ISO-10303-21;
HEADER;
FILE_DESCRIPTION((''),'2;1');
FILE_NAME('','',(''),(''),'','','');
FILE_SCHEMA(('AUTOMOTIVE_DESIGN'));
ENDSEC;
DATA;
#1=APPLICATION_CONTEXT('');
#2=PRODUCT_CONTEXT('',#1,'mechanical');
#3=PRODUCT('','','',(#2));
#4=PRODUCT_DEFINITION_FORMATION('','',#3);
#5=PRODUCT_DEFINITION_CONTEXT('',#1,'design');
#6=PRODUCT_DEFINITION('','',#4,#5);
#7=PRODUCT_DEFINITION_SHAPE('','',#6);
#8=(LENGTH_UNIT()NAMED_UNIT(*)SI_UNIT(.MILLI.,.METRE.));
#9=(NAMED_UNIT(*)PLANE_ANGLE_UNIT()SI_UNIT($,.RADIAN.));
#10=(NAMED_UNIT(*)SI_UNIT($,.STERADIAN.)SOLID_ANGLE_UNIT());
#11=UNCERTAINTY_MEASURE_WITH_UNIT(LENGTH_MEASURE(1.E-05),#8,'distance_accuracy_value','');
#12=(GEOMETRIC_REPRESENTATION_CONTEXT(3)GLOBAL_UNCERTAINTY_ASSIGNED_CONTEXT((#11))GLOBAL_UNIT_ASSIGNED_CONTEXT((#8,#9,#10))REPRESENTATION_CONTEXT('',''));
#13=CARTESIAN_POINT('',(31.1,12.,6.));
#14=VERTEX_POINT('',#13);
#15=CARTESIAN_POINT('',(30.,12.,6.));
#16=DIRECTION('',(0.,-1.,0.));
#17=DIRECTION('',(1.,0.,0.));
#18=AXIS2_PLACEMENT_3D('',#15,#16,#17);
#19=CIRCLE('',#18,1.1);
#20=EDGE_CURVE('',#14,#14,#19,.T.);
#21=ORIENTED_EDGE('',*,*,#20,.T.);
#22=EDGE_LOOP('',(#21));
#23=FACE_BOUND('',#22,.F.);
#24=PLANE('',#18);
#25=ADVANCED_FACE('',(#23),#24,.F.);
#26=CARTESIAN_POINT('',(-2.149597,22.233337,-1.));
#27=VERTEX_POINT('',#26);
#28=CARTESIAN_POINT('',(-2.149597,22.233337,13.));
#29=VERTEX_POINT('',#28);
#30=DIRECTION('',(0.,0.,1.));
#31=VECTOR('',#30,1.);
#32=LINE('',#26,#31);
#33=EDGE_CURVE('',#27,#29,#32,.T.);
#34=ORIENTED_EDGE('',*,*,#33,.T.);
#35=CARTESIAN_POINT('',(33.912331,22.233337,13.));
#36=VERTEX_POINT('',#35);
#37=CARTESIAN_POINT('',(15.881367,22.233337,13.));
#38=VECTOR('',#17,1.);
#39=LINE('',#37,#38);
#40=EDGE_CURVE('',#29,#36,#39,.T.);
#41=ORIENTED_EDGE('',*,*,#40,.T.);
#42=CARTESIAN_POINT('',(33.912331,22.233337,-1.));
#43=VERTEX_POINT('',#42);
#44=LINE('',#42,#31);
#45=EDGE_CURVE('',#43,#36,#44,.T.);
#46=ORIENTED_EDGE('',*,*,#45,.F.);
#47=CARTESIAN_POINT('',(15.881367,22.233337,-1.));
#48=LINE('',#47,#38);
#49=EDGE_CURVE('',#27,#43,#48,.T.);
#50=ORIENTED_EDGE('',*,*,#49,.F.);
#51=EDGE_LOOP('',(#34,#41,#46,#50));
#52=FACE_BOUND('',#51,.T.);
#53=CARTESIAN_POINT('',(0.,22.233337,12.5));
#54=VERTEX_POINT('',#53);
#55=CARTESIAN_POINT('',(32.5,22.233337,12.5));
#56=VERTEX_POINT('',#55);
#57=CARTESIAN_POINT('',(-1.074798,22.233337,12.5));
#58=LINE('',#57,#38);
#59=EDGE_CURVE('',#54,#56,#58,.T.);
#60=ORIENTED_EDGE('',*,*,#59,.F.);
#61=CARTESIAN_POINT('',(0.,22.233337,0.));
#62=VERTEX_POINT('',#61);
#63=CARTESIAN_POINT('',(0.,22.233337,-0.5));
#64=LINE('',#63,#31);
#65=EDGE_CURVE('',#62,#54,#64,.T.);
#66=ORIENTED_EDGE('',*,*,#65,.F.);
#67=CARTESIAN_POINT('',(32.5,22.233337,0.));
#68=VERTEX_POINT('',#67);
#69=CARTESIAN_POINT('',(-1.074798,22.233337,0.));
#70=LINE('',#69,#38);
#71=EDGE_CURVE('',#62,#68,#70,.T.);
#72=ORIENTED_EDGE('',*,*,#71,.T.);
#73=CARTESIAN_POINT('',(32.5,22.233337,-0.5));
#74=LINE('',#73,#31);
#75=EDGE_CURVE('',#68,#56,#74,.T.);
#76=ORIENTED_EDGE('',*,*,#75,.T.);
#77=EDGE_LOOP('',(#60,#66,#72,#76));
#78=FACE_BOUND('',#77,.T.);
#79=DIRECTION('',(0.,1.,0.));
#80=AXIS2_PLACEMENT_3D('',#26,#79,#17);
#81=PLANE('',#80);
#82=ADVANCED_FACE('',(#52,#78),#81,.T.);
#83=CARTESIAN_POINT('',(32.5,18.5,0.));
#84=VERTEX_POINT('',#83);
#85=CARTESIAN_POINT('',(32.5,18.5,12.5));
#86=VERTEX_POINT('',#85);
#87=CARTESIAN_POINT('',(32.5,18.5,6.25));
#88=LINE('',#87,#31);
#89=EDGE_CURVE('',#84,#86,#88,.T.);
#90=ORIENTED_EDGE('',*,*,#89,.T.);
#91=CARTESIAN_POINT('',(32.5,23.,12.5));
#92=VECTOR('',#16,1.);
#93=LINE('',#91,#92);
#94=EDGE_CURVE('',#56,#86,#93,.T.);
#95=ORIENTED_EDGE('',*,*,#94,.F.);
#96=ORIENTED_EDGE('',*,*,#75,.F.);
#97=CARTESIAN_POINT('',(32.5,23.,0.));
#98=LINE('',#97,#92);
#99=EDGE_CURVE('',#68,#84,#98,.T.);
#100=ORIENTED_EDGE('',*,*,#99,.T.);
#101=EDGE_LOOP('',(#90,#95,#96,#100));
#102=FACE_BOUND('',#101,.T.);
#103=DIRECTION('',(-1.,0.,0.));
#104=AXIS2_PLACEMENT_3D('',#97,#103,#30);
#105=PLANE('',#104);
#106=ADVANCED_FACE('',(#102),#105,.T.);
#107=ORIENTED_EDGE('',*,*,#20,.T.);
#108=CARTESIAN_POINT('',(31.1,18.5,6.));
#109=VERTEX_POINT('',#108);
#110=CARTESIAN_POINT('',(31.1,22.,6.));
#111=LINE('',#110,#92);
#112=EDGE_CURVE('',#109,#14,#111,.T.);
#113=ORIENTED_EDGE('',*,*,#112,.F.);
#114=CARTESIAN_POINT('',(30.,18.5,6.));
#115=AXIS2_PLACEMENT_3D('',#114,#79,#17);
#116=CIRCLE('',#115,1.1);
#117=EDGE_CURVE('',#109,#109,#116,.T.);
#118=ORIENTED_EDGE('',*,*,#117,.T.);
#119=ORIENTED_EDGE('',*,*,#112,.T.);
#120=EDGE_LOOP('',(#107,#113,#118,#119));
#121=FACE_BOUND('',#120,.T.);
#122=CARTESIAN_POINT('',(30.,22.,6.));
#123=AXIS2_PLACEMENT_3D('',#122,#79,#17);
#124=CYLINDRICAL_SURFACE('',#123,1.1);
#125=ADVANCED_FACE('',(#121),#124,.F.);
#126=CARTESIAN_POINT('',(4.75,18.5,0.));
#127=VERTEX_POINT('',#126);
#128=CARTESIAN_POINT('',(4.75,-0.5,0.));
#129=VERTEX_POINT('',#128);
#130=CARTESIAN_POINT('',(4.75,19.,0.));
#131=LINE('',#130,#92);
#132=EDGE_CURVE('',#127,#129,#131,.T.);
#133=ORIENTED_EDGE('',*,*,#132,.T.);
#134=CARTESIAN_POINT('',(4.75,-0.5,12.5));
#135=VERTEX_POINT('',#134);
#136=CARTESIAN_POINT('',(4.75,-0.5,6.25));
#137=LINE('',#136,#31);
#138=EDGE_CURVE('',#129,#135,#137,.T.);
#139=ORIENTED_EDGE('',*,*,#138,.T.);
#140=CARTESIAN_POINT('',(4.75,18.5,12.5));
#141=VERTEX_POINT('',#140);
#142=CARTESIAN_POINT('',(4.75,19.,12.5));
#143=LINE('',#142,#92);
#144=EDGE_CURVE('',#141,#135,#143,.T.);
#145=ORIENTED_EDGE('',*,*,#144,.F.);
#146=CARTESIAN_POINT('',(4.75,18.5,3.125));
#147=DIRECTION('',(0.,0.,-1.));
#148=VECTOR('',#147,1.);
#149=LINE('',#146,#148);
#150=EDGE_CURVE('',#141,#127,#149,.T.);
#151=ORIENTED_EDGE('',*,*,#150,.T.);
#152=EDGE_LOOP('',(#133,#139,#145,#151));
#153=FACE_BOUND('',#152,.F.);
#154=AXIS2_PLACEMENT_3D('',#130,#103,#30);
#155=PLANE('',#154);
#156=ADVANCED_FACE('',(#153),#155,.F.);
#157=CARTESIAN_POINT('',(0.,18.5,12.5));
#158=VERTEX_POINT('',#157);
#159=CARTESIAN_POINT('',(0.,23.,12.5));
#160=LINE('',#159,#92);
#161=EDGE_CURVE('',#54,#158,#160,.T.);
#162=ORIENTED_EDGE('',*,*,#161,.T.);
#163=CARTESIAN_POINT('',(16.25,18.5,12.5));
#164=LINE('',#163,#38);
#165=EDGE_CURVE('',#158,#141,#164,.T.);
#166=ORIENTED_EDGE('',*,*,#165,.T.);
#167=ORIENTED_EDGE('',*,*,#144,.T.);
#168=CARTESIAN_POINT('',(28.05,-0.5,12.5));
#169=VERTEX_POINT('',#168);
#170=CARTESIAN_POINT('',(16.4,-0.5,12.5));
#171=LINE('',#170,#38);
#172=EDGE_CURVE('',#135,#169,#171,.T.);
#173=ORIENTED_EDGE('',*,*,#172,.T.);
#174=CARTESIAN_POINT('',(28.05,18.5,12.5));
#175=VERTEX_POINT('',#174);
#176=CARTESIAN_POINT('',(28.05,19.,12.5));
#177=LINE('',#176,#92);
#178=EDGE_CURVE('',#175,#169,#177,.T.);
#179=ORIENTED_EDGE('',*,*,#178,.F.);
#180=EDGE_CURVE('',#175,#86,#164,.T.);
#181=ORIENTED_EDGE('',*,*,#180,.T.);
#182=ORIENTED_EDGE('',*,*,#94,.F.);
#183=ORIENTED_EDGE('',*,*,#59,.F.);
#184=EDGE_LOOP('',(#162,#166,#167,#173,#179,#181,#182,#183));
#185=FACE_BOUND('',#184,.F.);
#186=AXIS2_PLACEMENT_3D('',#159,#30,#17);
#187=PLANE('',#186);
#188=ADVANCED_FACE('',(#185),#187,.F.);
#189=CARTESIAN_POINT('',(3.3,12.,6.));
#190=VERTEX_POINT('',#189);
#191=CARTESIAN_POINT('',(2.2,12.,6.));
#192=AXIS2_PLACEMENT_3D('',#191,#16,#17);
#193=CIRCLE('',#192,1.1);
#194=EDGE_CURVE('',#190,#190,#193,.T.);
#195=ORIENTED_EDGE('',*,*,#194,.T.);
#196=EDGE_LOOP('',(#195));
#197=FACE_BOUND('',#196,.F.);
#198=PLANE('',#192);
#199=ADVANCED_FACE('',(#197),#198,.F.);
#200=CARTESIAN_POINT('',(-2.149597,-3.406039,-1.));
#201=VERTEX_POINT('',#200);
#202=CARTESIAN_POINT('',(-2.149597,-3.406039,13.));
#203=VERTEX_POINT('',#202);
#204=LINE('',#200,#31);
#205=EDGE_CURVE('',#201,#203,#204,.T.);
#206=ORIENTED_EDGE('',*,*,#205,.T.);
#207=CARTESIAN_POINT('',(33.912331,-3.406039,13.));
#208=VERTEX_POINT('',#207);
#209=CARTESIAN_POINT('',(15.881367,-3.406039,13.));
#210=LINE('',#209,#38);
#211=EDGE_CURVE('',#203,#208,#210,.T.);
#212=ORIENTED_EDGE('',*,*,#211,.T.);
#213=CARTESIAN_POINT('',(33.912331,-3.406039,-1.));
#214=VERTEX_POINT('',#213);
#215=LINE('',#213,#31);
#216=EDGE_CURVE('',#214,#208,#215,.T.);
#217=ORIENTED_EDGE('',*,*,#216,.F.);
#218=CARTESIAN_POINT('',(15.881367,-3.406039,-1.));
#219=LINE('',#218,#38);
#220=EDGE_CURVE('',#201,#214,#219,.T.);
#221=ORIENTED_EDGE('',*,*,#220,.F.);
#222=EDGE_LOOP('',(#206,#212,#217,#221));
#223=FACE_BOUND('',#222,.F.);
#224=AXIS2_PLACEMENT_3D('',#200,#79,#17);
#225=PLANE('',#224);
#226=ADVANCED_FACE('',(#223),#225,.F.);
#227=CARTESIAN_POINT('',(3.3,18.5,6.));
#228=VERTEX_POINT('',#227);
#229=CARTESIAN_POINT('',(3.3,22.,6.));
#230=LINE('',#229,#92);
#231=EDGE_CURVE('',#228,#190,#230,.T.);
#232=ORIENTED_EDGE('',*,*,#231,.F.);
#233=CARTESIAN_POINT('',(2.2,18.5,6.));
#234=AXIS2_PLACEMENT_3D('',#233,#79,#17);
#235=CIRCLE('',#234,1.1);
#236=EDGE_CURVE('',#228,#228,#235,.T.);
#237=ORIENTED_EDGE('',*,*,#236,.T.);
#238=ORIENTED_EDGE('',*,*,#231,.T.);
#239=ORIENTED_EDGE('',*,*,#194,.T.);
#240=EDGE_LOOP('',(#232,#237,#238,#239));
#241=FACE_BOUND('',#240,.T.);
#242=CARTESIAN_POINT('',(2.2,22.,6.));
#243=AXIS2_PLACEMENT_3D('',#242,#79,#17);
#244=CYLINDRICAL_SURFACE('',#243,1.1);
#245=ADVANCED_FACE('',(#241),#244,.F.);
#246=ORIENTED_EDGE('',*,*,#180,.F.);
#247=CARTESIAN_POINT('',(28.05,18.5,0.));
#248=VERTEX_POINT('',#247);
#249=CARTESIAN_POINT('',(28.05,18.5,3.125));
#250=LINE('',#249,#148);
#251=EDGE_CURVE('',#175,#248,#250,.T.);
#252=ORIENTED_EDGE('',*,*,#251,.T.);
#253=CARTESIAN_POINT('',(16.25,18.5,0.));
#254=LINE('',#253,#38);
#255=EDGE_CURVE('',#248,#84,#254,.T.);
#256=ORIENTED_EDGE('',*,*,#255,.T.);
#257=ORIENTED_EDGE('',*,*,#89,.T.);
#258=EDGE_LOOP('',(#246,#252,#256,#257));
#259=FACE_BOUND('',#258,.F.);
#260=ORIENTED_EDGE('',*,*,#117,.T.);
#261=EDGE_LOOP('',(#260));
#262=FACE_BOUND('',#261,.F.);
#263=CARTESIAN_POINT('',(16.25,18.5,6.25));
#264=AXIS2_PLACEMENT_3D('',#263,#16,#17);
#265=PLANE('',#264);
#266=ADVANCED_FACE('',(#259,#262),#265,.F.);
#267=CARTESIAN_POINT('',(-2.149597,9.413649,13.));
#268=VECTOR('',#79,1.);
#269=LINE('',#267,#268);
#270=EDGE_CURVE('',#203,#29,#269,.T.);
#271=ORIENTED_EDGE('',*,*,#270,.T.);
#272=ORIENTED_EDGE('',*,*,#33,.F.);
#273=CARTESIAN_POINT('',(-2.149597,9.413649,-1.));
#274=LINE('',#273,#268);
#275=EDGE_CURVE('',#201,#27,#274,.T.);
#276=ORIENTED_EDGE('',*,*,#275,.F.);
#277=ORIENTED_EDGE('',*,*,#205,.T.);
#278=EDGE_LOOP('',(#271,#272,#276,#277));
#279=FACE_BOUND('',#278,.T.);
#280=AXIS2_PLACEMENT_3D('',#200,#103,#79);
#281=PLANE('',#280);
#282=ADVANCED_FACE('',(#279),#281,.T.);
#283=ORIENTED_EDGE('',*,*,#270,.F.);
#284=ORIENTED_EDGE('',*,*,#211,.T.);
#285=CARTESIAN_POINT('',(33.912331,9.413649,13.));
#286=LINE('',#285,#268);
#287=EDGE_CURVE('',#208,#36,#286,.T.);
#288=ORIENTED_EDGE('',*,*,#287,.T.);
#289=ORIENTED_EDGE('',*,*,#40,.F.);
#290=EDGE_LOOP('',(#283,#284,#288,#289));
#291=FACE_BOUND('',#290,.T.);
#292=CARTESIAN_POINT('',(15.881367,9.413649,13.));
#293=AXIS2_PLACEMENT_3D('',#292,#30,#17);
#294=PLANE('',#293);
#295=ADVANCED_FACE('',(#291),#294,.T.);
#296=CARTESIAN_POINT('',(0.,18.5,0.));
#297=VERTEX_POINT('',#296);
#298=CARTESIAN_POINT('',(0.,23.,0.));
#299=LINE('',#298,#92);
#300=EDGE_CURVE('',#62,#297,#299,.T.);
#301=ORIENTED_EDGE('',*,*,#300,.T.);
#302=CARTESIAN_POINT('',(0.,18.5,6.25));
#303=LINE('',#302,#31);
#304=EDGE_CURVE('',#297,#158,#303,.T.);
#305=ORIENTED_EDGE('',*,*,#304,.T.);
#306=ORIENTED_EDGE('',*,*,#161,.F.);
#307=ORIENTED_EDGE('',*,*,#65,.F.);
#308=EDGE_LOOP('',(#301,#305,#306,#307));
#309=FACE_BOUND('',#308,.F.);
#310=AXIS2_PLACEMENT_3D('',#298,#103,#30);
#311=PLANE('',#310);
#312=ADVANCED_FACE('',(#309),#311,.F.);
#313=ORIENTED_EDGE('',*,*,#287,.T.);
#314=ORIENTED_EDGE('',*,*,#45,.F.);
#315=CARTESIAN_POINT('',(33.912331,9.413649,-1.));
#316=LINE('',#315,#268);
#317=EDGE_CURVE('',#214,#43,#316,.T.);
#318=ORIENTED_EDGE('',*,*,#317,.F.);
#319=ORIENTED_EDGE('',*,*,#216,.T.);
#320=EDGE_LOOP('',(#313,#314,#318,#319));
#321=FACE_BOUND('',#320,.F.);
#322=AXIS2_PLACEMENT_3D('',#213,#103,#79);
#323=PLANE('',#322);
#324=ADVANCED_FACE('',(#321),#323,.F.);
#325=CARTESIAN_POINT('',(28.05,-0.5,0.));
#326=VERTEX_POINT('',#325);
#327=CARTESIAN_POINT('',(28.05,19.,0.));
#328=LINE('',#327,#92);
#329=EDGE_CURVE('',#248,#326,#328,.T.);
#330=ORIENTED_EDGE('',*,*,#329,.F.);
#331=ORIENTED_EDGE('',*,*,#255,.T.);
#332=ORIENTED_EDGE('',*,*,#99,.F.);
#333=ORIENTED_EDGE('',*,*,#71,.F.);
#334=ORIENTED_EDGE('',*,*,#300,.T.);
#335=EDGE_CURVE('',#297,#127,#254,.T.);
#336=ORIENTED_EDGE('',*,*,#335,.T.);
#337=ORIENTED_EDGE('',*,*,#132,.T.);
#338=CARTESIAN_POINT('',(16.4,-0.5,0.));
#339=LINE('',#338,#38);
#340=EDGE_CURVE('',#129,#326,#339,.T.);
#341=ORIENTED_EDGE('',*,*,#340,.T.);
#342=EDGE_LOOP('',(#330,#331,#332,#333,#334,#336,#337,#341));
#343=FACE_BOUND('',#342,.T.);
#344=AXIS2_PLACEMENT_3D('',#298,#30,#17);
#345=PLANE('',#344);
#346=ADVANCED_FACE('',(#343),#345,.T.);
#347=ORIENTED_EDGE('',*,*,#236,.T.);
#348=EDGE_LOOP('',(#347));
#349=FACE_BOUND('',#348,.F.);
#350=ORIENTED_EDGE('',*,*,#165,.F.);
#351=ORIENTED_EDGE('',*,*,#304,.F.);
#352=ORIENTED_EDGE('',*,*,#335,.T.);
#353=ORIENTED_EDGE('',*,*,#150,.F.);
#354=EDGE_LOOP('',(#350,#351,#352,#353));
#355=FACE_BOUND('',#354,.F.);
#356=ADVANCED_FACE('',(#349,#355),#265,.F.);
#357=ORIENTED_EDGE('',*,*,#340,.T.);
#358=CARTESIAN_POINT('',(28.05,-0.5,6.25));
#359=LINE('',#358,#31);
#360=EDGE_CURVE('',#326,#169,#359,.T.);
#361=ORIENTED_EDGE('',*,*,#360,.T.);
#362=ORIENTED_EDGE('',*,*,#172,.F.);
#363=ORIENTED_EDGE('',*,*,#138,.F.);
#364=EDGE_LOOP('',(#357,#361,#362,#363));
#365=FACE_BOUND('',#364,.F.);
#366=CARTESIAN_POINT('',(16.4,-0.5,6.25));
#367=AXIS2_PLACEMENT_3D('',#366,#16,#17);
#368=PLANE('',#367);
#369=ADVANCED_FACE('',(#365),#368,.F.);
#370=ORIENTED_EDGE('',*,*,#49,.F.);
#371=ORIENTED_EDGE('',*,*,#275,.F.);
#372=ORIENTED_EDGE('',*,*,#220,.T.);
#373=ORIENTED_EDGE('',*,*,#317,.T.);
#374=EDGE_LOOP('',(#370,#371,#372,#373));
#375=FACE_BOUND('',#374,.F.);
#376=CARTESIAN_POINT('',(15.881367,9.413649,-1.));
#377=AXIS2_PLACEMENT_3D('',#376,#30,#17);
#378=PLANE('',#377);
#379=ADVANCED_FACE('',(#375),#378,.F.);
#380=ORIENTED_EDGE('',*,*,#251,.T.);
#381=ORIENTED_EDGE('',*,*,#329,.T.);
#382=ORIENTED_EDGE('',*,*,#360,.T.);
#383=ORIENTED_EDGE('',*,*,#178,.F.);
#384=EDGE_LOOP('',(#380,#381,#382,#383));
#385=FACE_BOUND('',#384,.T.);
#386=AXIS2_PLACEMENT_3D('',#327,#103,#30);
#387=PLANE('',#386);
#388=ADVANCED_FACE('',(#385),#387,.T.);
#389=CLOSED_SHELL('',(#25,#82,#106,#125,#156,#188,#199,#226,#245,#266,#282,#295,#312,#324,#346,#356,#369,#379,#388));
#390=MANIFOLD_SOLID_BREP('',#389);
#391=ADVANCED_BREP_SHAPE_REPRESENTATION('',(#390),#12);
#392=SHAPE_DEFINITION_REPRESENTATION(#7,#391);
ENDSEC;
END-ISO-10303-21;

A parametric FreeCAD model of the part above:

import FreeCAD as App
import Part
import Sketcher
from FreeCAD import Vector

doc = App.newDocument("Part")
body = doc.addObject("PartDesign::Body", "Body")

# Sketch on XZ plane
sketch1 = body.newObject("Sketcher::SketchObject", "Sketch")
sketch1.AttachmentSupport = (doc.getObject("XZ_Plane"), [""])
sketch1.MapMode = "FlatFace"
sketch1.AttachmentOffset = App.Placement(Vector(0, 0, -22), App.Rotation())
sketch1.addGeometry(Part.Circle(Vector(30, 6, 0), Vector(0, 0, 1), 1.1), False)
sketch1.addConstraint([
    Sketcher.Constraint("Diameter", 0, 2.2),
    Sketcher.Constraint("DistanceX", -1, 1, 0, 3, 30.0),
    Sketcher.Constraint("DistanceY", -1, 1, 0, 3, 6.0),
])
pad1 = body.newObject("PartDesign::Pad", "Pad")
pad1.Profile = sketch1
pad1.Length = 10
body2 = doc.addObject("PartDesign::Body", "Body001")
body2.AllowCompound = True

# Sketch on XZ plane
sketch2 = body2.newObject("Sketcher::SketchObject", "Sketch001")
sketch2.AttachmentSupport = (doc.getObject("XZ_Plane001"), [""])
sketch2.MapMode = "FlatFace"
sketch2.AttachmentOffset = App.Placement(Vector(0, 0, -22), App.Rotation())
sketch2.addGeometry(Part.Circle(Vector(2.2, 6, 0), Vector(0, 0, 1), 1.1), False)
sketch2.addConstraint([
    Sketcher.Constraint("Diameter", 0, 2.2),
    Sketcher.Constraint("DistanceY", -1, 1, 0, 3, 6.0),
    Sketcher.Constraint("DistanceX", -1, 1, 0, 3, 2.2),
])
pad2 = body2.newObject("PartDesign::Pad", "Pad001")
pad2.Profile = sketch2
pad2.Length = 10
doc.recompute()

boolean = body2.newObject("PartDesign::Boolean", "Boolean")
boolean.Type = "Fuse"
boolean.addObjects([body])
body3 = doc.addObject("PartDesign::Body", "Body002")

# Sketch on XZ plane
sketch3 = body3.newObject("Sketcher::SketchObject", "Sketch002")
sketch3.AttachmentSupport = (doc.getObject("XZ_Plane002"), [""])
sketch3.MapMode = "FlatFace"
sketch3.addGeometry([
    Part.LineSegment(Vector(5, 12, 0), Vector(5, 0, 0)),
    Part.LineSegment(Vector(5, 0, 0), Vector(28, 0, 0)),
    Part.LineSegment(Vector(28, 0, 0), Vector(28, 12, 0)),
    Part.LineSegment(Vector(28, 12, 0), Vector(5, 12, 0)),
], False)
sketch3.addConstraint([
    Sketcher.Constraint("Coincident", 0, 2, 1, 1),
    Sketcher.Constraint("Coincident", 1, 2, 2, 1),
    Sketcher.Constraint("Coincident", 2, 2, 3, 1),
    Sketcher.Constraint("Coincident", 3, 2, 0, 1),
    Sketcher.Constraint("Vertical", 0),
    Sketcher.Constraint("Horizontal", 1),
    Sketcher.Constraint("Vertical", 2),
    Sketcher.Constraint("Horizontal", 3),
    Sketcher.Constraint("PointOnObject", 0, 2, -1),
    Sketcher.Constraint("DistanceX", 1, 1, 1, 2, 23.3),
    Sketcher.Constraint("DistanceY", 0, 2, 0, 1, 12.5),
    Sketcher.Constraint("DistanceX", -1, 1, 0, 2, 4.75),
])
pad3 = body3.newObject("PartDesign::Pad", "Pad002")
pad3.Profile = sketch3
pad3.Length = 19.5
body4 = doc.addObject("PartDesign::Body", "Body003")
doc.recompute()

body3.Placement = App.Placement(Vector(0, 19, 0), App.Rotation(Vector(0, 0, 1), 0))
boolean2 = body4.newObject("PartDesign::Boolean", "Boolean001")
boolean2.Type = "Fuse"
boolean2.addObjects([body3])
body5 = doc.addObject("PartDesign::Body", "Body004")

# Sketch on XZ plane
sketch4 = body5.newObject("Sketcher::SketchObject", "Sketch003")
sketch4.AttachmentSupport = (doc.getObject("XZ_Plane004"), [""])
sketch4.MapMode = "FlatFace"
sketch4.addGeometry([
    Part.LineSegment(Vector(0, 12, 0), Vector(0, 0, 0)),
    Part.LineSegment(Vector(0, 0, 0), Vector(32, 0, 0)),
    Part.LineSegment(Vector(32, 0, 0), Vector(32, 12, 0)),
    Part.LineSegment(Vector(32, 12, 0), Vector(0, 12, 0)),
], False)
sketch4.addConstraint([
    Sketcher.Constraint("Coincident", 0, 2, 1, 1),
    Sketcher.Constraint("Coincident", 1, 2, 2, 1),
    Sketcher.Constraint("Coincident", 2, 2, 3, 1),
    Sketcher.Constraint("Coincident", 3, 2, 0, 1),
    Sketcher.Constraint("Vertical", 0),
    Sketcher.Constraint("Horizontal", 1),
    Sketcher.Constraint("Vertical", 2),
    Sketcher.Constraint("Horizontal", 3),
    Sketcher.Constraint("Coincident", 0, 2, -1, 1),
    Sketcher.Constraint("DistanceX", 1, 1, 1, 2, 32.5),
    Sketcher.Constraint("DistanceY", 0, 2, 0, 1, 12.5),
])
pad4 = body5.newObject("PartDesign::Pad", "Pad003")
pad4.Profile = sketch4
pad4.Length = 4.5
body6 = doc.addObject("PartDesign::Body", "Body005")
doc.recompute()

body5.Placement = App.Placement(Vector(0, 23, 0), App.Rotation(Vector(0, 0, 1), 0))
boolean3 = body6.newObject("PartDesign::Boolean", "Boolean002")
boolean3.Type = "Fuse"
boolean3.addObjects([body5])
body7 = doc.addObject("PartDesign::Body", "Body006")

# Sketch on XY plane
sketch5 = body7.newObject("Sketcher::SketchObject", "Sketch004")
sketch5.AttachmentSupport = (doc.getObject("XY_Plane006"), [""])
sketch5.MapMode = "FlatFace"
sketch5.addGeometry([
    Part.LineSegment(Vector(-2, 22, 0), Vector(-2, -3, 0)),
    Part.LineSegment(Vector(-2, -3, 0), Vector(34, -3, 0)),
    Part.LineSegment(Vector(34, -3, 0), Vector(34, 22, 0)),
    Part.LineSegment(Vector(34, 22, 0), Vector(-2, 22, 0)),
], False)
sketch5.addConstraint([
    Sketcher.Constraint("Coincident", 0, 2, 1, 1),
    Sketcher.Constraint("Coincident", 1, 2, 2, 1),
    Sketcher.Constraint("Coincident", 2, 2, 3, 1),
    Sketcher.Constraint("Coincident", 3, 2, 0, 1),
    Sketcher.Constraint("Vertical", 0),
    Sketcher.Constraint("Horizontal", 1),
    Sketcher.Constraint("Vertical", 2),
    Sketcher.Constraint("Horizontal", 3),
    Sketcher.Constraint("DistanceX", 1, 1, 1, 2, 36.061928),
    Sketcher.Constraint("DistanceY", 0, 2, 0, 1, 25.639376),
    Sketcher.Constraint("DistanceY", 0, 2, -1, 1, 3.406039),
    Sketcher.Constraint("DistanceX", -1, 1, 1, 2, 33.912331),
])
pad5 = body7.newObject("PartDesign::Pad", "Pad004")
pad5.Profile = sketch5
pad5.Length = 14
body8 = doc.addObject("PartDesign::Body", "Body007")
doc.recompute()

body7.Placement = App.Placement(Vector(0, 0, -1), App.Rotation(Vector(0, 0, 1), 0))
boolean4 = body8.newObject("PartDesign::Boolean", "Boolean003")
boolean4.Type = "Fuse"
boolean4.addObjects([body7])
doc.recompute()

boolean5 = body8.newObject("PartDesign::Boolean", "Boolean004")
boolean5.Type = "Cut"
boolean5.addObjects([body6])
doc.recompute()

boolean6 = body8.newObject("PartDesign::Boolean", "Boolean005")
boolean6.Type = "Cut"
boolean6.addObjects([body4])
doc.recompute()

boolean7 = body8.newObject("PartDesign::Boolean", "Boolean006")
boolean7.Type = "Cut"
boolean7.addObjects([body2])

doc.recompute()
